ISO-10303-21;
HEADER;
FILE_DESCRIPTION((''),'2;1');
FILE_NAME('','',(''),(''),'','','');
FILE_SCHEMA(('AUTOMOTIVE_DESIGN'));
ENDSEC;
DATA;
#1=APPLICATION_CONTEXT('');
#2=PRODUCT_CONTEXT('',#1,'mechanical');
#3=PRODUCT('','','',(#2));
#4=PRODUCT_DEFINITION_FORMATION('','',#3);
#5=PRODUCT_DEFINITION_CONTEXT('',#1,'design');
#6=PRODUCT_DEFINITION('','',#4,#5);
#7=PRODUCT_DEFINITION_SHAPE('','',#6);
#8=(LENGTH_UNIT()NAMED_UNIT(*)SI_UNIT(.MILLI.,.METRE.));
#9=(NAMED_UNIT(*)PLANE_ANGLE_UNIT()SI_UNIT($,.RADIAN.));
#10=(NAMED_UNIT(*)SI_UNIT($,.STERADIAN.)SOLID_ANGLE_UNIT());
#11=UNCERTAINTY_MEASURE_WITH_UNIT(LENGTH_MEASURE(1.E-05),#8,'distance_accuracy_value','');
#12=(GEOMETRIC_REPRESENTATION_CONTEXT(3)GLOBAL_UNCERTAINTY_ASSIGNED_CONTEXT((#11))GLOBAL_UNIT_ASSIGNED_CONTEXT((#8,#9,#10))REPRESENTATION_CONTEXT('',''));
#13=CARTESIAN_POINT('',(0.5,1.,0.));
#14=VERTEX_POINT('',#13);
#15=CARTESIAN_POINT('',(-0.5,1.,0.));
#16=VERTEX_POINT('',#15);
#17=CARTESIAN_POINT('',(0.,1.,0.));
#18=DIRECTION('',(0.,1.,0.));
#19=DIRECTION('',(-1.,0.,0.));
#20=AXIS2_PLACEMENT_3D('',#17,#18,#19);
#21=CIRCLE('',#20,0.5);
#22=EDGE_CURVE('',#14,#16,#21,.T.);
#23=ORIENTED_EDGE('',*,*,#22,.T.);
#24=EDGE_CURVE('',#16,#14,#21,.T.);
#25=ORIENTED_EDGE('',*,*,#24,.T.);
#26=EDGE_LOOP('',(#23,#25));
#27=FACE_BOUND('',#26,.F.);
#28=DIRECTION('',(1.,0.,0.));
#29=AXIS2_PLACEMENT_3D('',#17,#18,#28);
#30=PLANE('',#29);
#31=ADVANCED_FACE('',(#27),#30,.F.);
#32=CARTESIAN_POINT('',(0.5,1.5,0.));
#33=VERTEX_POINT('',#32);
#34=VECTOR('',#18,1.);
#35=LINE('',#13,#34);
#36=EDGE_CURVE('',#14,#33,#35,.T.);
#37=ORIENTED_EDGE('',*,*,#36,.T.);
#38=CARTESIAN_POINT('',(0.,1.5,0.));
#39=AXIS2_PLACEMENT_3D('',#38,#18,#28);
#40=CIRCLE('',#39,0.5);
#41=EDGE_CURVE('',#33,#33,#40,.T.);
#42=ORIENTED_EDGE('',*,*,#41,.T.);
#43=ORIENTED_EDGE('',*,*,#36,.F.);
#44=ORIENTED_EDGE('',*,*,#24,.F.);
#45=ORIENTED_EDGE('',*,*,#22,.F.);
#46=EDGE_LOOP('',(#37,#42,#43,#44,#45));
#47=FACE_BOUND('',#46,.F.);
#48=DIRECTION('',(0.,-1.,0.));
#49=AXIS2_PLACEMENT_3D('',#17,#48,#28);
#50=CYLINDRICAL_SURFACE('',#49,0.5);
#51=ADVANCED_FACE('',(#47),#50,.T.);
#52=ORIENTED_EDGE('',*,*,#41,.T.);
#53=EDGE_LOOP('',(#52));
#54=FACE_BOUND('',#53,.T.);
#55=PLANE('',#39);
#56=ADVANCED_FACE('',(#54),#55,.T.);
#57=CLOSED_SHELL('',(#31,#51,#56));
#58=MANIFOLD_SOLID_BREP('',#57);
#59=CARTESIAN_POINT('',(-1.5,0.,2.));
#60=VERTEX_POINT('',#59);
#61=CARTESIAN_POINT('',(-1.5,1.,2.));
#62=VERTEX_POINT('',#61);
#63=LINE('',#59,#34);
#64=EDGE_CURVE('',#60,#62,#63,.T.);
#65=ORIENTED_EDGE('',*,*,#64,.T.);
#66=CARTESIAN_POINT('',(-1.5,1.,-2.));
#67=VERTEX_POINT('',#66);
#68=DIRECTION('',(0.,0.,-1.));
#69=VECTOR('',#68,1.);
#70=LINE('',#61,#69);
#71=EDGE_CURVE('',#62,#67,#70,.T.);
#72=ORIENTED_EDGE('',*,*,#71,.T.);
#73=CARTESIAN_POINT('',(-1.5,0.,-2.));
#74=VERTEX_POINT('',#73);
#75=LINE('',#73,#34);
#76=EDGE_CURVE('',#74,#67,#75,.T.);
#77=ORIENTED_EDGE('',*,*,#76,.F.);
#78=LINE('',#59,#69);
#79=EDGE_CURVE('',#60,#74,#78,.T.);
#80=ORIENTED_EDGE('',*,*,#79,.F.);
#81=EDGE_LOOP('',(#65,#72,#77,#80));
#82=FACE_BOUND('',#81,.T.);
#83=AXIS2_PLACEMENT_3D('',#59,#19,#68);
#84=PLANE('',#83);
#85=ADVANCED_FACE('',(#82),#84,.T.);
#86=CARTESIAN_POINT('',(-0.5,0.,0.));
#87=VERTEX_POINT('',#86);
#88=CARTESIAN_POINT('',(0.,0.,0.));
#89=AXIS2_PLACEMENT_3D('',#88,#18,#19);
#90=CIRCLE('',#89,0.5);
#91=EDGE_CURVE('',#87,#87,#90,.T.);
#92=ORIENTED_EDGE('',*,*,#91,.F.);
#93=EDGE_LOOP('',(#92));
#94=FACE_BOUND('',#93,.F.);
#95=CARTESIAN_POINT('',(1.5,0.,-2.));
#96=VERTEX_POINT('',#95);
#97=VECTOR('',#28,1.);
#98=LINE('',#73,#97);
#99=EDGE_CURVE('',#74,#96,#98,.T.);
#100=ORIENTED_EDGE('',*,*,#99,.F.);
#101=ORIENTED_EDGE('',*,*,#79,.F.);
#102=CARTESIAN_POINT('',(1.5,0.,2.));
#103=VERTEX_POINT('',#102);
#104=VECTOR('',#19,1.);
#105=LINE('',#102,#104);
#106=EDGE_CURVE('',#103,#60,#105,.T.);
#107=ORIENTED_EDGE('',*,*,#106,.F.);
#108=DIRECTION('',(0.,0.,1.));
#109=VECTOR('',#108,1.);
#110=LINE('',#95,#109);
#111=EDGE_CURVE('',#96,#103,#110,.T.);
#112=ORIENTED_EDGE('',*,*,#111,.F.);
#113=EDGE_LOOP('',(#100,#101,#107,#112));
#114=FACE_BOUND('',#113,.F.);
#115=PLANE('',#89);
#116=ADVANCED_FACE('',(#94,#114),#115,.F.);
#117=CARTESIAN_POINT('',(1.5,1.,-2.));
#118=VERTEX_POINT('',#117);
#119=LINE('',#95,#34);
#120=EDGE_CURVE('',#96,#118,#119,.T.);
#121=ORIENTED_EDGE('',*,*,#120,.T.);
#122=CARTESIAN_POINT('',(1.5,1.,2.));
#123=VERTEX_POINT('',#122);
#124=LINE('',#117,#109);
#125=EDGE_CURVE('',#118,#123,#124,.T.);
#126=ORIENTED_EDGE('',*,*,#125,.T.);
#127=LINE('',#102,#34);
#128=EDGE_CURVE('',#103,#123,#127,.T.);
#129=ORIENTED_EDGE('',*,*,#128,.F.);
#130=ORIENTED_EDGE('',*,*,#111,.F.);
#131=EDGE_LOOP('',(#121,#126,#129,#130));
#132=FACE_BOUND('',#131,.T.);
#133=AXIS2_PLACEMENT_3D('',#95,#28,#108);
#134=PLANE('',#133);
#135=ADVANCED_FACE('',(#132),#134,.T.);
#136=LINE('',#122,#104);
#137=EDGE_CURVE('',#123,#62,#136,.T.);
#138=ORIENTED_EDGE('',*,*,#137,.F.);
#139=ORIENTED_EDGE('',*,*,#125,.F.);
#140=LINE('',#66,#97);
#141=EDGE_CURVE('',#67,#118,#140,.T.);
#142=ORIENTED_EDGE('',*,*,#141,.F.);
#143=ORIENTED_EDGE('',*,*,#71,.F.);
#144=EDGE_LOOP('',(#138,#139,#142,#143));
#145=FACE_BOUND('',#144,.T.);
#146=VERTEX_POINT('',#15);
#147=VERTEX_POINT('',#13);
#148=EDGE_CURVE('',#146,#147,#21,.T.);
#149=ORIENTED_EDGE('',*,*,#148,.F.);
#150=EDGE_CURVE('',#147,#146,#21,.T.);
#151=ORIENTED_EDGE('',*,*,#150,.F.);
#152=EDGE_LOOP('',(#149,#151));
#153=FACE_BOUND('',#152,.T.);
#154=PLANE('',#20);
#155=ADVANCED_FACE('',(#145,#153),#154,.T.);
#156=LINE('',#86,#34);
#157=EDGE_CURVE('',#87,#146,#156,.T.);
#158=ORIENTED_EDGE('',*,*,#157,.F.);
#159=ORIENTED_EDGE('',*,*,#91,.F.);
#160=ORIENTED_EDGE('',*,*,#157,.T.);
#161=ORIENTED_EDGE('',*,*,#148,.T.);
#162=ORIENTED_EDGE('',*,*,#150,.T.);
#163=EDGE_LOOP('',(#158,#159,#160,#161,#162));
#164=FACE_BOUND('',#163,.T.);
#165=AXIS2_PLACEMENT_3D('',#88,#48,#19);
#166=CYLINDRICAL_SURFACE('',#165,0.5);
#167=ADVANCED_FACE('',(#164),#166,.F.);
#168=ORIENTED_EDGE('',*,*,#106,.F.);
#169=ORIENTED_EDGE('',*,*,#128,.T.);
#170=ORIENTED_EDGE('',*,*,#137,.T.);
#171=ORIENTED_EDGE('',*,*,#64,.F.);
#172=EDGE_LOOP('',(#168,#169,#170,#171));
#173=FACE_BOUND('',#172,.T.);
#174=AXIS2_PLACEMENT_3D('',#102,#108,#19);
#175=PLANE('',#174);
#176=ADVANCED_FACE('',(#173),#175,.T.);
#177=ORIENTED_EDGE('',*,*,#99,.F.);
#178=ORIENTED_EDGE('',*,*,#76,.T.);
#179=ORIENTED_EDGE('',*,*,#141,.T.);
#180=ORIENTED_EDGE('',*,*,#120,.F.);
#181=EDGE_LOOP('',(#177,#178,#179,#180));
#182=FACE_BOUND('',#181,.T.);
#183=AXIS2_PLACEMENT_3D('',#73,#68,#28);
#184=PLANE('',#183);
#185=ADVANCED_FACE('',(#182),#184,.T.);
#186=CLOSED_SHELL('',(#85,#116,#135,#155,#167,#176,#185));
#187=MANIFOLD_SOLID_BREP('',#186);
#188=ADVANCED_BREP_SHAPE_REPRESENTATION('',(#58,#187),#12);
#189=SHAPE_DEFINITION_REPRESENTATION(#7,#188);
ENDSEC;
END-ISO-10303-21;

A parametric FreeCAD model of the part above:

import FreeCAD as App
import Part
import Sketcher
from FreeCAD import Vector
Q = App.Units.Quantity

doc = App.newDocument("Part")
params = doc.addObject("Spreadsheet::Sheet", "Params")
for row, (alias, value) in enumerate([
    ("sketch1_diameter", "1 mm"),
    ("sketch1_width", "3 mm"),
    ("sketch1_height", "4 mm"),
    ("pad1_length", "1 mm"),
    ("sketch2_diameter", "1 mm"),
    ("pad2_length", "0.5 mm"),
], start=1):
    params.set(f"A{row}", alias)
    params.set(f"B{row}", "=" + value)
    params.setAlias(f"B{row}", alias)

body = doc.addObject("PartDesign::Body", "Body")
body.AllowCompound = True

# Sketch on XZ plane
sketch1 = doc.addObject("Sketcher::SketchObject", "Sketch")
body.addObject(sketch1)
sketch1.AttachmentSupport = (doc.XZ_Plane, [""])
sketch1.MapMode = "FlatFace"
sketch1.addGeometry(Part.LineSegment(Vector(-1.5, 2, 0), Vector(1.5, 2, 0)), False)
sketch1.addGeometry(Part.LineSegment(Vector(1.5, 2, 0), Vector(1.5, -2, 0)), False)
sketch1.addGeometry(Part.LineSegment(Vector(1.5, -2, 0), Vector(-1.5, -2, 0)), False)
sketch1.addGeometry(Part.LineSegment(Vector(-1.5, -2, 0), Vector(-1.5, 2, 0)), False)
sketch1.addGeometry(Part.Circle(Vector(0, 0, 0), Vector(0, 0, 1), 0.5), False)
sketch1.addConstraint(Sketcher.Constraint("Coincident", 0, 2, 1, 1))
sketch1.addConstraint(Sketcher.Constraint("Coincident", 1, 2, 2, 1))
sketch1.addConstraint(Sketcher.Constraint("Coincident", 2, 2, 3, 1))
sketch1.addConstraint(Sketcher.Constraint("Coincident", 3, 2, 0, 1))
sketch1.addConstraint(Sketcher.Constraint("Horizontal", 0))
sketch1.addConstraint(Sketcher.Constraint("Vertical", 1))
sketch1.addConstraint(Sketcher.Constraint("Horizontal", 2))
sketch1.addConstraint(Sketcher.Constraint("Vertical", 3))
sketch1.addConstraint(Sketcher.Constraint("Coincident", 4, 3, -1, 1))
sketch1.addConstraint(Sketcher.Constraint("Symmetric", 0, 2, 2, 2, -1, 1))
sketch1.addConstraint(Sketcher.Constraint("Diameter", 4, Q("1 mm")))
sketch1.addConstraint(Sketcher.Constraint("DistanceX", 0, 1, 0, 2, Q("3 mm")))
sketch1.addConstraint(Sketcher.Constraint("DistanceY", 1, 2, 1, 1, Q("4 mm")))
sketch1.setExpression("Constraints[10]", "Params.sketch1_diameter")
sketch1.setExpression("Constraints[11]", "Params.sketch1_width")
sketch1.setExpression("Constraints[12]", "Params.sketch1_height")
pad1 = doc.addObject("PartDesign::Pad", "Pad")
body.addObject(pad1)
pad1.Profile = sketch1
pad1.setExpression("Length", "Params.pad1_length")
pad1.Reversed = True

# Sketch on XZ plane
sketch2 = doc.addObject("Sketcher::SketchObject", "Sketch001")
body.addObject(sketch2)
sketch2.AttachmentSupport = (doc.XZ_Plane, [""])
sketch2.MapMode = "FlatFace"
sketch2.AttachmentOffset = App.Placement(Vector(0, 0, -1), App.Rotation())
sketch2.addGeometry(Part.Circle(Vector(0, 0, 0), Vector(0, 0, 1), 0.5), False)
sketch2.addConstraint(Sketcher.Constraint("Coincident", 0, 3, -1, 1))
sketch2.addConstraint(Sketcher.Constraint("Diameter", 0, Q("1 mm")))
sketch2.setExpression("Constraints[1]", "Params.sketch2_diameter")
pad2 = doc.addObject("PartDesign::Pad", "Pad001")
body.addObject(pad2)
pad2.Profile = sketch2
pad2.setExpression("Length", "Params.pad2_length")
pad2.Reversed = True

doc.recompute()
